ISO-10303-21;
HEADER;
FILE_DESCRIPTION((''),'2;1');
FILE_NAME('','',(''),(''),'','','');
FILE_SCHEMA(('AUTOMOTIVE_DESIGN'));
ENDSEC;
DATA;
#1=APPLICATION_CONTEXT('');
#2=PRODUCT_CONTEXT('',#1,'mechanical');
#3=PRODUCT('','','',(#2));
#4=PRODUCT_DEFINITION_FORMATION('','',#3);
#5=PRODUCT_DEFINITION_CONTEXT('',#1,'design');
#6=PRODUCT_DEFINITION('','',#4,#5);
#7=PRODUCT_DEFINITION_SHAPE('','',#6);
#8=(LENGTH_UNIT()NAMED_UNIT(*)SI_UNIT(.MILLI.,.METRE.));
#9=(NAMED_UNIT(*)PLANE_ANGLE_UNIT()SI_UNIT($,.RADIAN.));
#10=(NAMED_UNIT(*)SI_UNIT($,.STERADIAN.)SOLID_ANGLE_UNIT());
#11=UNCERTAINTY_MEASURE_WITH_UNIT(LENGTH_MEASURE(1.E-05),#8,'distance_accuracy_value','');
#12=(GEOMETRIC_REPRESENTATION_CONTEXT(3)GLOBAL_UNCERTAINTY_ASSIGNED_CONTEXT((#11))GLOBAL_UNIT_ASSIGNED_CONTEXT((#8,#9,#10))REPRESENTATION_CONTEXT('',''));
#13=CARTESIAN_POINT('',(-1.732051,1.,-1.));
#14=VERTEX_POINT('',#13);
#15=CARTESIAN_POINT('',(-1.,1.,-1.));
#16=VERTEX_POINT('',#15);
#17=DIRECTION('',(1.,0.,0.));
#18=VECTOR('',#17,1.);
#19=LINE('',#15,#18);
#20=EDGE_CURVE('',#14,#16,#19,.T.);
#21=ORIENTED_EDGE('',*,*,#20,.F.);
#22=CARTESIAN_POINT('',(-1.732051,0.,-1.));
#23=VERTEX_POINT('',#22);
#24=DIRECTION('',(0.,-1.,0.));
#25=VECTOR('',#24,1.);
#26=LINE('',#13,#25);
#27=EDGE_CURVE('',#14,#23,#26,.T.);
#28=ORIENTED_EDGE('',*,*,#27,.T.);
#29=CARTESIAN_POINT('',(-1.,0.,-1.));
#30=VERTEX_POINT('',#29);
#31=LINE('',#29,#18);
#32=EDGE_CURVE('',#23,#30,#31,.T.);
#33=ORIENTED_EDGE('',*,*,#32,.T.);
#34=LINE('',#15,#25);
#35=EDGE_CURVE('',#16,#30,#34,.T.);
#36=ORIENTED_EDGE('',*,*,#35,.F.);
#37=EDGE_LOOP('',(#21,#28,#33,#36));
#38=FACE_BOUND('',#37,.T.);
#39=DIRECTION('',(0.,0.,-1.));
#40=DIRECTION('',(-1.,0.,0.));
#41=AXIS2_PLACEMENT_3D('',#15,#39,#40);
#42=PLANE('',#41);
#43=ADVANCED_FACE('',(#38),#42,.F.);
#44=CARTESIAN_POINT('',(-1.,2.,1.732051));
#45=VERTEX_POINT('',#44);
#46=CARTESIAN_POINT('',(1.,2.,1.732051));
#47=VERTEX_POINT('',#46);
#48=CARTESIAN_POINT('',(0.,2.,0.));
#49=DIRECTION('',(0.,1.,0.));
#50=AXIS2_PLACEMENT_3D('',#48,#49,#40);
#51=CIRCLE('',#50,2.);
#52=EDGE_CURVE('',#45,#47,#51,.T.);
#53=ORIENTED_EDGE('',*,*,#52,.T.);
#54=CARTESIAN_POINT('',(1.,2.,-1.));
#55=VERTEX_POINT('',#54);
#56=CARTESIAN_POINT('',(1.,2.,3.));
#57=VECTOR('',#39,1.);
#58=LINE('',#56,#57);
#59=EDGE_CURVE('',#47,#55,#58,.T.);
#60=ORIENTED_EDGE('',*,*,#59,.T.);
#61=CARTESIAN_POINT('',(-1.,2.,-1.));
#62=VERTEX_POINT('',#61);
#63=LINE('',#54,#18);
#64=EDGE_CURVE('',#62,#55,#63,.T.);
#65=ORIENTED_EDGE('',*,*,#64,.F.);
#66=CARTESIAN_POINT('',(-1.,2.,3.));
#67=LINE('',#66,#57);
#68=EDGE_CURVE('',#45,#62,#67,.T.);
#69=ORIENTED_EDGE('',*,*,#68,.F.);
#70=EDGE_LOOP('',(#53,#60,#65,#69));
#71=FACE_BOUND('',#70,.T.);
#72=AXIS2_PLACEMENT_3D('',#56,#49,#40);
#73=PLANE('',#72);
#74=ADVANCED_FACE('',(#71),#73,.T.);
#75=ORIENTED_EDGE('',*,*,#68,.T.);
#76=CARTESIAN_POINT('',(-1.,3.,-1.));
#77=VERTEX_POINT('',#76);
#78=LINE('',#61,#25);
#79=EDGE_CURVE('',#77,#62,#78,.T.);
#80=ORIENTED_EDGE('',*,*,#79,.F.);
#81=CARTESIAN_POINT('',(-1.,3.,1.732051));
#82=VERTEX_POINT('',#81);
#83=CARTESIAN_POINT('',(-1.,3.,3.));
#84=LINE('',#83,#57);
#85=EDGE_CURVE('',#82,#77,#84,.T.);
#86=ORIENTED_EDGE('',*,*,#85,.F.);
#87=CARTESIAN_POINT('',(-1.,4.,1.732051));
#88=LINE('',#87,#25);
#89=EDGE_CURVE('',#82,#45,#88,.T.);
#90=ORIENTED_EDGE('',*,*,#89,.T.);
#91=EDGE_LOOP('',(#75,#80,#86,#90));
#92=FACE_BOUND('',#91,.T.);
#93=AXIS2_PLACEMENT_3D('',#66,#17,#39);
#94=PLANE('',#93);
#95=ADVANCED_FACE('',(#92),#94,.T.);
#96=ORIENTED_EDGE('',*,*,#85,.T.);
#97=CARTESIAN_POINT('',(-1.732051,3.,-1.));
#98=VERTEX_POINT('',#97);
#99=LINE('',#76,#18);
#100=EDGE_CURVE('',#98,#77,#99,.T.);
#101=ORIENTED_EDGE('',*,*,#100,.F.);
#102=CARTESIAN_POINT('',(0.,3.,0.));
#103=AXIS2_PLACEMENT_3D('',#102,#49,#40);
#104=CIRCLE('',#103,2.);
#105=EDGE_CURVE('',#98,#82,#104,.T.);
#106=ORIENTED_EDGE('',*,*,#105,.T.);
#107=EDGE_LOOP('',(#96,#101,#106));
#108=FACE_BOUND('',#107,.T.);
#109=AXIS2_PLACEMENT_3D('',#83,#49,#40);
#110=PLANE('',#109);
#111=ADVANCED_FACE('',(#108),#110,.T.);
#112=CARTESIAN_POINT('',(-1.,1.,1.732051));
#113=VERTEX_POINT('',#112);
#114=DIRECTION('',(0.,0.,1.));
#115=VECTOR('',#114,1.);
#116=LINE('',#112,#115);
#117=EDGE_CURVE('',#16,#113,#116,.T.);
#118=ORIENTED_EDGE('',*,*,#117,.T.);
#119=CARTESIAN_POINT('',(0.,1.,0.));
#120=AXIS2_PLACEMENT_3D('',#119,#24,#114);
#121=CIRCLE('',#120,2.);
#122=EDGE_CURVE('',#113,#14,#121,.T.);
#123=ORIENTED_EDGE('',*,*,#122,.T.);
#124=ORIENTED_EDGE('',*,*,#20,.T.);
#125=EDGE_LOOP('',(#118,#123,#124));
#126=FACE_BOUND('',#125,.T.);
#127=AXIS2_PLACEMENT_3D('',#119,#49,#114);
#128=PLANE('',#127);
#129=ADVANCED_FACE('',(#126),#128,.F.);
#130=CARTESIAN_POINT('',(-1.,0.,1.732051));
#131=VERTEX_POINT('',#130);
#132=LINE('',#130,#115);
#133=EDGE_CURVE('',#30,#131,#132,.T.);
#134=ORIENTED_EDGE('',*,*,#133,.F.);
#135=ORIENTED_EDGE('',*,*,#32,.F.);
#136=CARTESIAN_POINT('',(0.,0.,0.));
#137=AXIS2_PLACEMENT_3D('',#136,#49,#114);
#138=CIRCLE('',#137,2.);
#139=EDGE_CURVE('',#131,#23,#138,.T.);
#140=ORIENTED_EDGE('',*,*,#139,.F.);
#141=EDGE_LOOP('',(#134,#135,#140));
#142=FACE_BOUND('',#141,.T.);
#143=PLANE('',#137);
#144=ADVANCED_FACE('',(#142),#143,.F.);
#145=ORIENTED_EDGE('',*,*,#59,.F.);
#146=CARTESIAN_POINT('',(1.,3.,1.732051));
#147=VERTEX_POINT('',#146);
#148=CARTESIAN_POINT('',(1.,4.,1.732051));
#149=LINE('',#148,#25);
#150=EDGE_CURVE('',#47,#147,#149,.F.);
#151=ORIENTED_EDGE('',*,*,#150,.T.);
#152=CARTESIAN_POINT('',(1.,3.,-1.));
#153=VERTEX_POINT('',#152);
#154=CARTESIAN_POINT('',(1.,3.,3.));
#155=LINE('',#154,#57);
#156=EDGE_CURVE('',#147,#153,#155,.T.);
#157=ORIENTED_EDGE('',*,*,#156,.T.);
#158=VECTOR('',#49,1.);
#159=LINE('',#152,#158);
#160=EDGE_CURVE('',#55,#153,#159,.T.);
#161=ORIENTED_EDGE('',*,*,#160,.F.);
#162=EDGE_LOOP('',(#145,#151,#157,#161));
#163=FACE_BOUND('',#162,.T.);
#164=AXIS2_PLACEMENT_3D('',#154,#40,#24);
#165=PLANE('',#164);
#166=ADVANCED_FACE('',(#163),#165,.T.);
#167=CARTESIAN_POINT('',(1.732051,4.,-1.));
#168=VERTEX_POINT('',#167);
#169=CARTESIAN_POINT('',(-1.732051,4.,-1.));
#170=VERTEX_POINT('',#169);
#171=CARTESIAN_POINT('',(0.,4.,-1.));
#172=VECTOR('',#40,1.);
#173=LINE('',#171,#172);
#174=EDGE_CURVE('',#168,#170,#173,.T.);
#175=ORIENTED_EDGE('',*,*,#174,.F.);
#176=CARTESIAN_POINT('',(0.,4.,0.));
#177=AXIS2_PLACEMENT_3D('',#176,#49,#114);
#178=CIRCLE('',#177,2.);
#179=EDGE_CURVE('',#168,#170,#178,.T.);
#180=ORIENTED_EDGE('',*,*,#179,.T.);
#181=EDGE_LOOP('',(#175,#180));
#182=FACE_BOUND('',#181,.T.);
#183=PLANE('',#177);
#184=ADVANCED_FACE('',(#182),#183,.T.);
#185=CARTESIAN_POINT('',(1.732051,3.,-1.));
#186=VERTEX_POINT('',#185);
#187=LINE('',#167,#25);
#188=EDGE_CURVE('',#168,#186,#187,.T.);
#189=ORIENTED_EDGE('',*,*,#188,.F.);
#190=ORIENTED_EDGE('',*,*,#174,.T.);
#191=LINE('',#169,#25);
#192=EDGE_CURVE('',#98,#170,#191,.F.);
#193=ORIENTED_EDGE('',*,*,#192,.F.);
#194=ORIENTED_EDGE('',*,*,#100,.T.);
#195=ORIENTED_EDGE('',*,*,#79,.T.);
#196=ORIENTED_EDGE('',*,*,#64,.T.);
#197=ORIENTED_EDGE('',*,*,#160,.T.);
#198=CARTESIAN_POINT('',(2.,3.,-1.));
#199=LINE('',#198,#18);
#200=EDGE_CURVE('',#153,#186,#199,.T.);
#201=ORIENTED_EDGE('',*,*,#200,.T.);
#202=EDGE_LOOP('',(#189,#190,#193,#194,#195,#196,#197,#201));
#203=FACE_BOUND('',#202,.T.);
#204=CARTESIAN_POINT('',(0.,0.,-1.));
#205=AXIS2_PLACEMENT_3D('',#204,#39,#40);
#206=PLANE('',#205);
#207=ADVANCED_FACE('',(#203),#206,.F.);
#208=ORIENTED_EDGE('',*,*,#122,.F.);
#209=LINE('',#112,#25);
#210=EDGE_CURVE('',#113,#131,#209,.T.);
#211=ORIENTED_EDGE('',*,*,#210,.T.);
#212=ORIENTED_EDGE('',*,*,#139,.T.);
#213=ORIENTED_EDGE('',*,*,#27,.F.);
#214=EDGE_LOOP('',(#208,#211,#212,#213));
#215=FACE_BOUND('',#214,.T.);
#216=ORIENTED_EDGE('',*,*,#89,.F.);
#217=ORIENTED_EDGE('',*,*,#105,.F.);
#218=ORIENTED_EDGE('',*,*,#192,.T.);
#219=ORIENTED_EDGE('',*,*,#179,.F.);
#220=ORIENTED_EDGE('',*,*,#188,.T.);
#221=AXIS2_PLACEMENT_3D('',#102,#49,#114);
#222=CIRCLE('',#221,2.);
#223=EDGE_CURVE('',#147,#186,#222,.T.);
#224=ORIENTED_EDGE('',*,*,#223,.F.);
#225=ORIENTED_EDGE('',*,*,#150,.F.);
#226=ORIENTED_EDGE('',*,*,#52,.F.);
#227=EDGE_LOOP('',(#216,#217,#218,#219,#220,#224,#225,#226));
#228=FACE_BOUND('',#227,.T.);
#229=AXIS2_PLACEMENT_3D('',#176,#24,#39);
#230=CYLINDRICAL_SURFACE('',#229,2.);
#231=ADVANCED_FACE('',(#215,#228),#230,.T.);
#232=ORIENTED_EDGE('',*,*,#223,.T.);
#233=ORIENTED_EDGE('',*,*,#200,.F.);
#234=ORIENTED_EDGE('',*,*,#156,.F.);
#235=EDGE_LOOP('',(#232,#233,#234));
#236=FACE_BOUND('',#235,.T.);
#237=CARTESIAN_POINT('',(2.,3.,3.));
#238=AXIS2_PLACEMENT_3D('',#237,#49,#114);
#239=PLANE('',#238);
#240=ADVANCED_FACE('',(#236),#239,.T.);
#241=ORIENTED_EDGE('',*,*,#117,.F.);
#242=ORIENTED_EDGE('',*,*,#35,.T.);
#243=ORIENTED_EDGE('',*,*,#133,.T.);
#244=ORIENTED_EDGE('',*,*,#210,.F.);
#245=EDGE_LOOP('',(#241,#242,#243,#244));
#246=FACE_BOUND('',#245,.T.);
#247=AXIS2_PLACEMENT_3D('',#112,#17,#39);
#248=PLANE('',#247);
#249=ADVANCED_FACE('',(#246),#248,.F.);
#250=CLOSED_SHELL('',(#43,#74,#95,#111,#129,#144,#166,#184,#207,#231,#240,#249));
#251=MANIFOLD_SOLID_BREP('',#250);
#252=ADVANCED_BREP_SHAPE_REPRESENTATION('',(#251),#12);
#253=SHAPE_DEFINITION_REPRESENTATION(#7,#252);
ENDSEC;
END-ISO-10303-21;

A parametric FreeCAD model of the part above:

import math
import FreeCAD as App
import Part
import Sketcher

V = App.Vector


def add_polygon(sketch, points):
    """Adds a closed chain of lines whose ends are joined by coincident constraints."""
    first, n = sketch.GeometryCount, len(points)
    for a, b in zip(points, points[1:] + points[:1]):
        sketch.addGeometry(Part.LineSegment(App.Vector(*a, 0), App.Vector(*b, 0)), False)
    for i in range(n):
        sketch.addConstraint(Sketcher.Constraint("Coincident", first + i, 2, first + (i + 1) % n, 1))

doc = App.newDocument("Part")
params = doc.addObject("Spreadsheet::Sheet", "Params")
for row, (alias, value) in enumerate([
    ("sketch1_diameter", "4 mm"),
    ("pad1_length", "4 mm"),
    ("sketch2_width", "4 mm"),
    ("sketch2_width2", "1 mm"),
    ("pocket1_length", "3 mm"),
    ("pocket1_length2", "1 mm"),
    ("sketch3_radius", "2 mm"),
    ("pocket2_length", "1 mm"),
], start=1):
    params.set(f"A{row}", alias)
    params.set(f"B{row}", "=" + value)
    params.setAlias(f"B{row}", alias)

body = doc.addObject("PartDesign::Body", "Body")

# Sketch on XZ plane
sketch1 = body.newObject("Sketcher::SketchObject", "Sketch")
sketch1.AttachmentSupport = (doc.getObject("XZ_Plane"), [""])
sketch1.MapMode = "FlatFace"
sketch1.addGeometry(Part.Circle(V(0, 0, 0), V(0, 0, 1), 2), False)
sketch1.addConstraint(Sketcher.Constraint("Coincident", 0, 3, -1, 1))
sketch1.addConstraint(Sketcher.Constraint("Diameter", 0, 4.0))
sketch1.setExpression("Constraints[1]", "Params.sketch1_diameter")
pad1 = body.newObject("PartDesign::Pad", "Pad")
pad1.Profile = sketch1
pad1.setExpression("Length", "Params.pad1_length")
pad1.Reversed = True

# Sketch on XY plane
sketch2 = body.newObject("Sketcher::SketchObject", "Sketch001")
sketch2.AttachmentSupport = (doc.getObject("XY_Plane"), [""])
sketch2.MapMode = "FlatFace"
add_polygon(sketch2, [(2, 4), (-2, 4), (-2, 3), (-1, 3), (-1, 2), (1, 2), (1, 3), (2, 3)])  # lines 0-7
sketch2.addConstraint(Sketcher.Constraint("Horizontal", 0))
sketch2.addConstraint(Sketcher.Constraint("Vertical", 1))
sketch2.addConstraint(Sketcher.Constraint("Horizontal", 2))
sketch2.addConstraint(Sketcher.Constraint("Vertical", 3))
sketch2.addConstraint(Sketcher.Constraint("Horizontal", 4))
sketch2.addConstraint(Sketcher.Constraint("Vertical", 5))
sketch2.addConstraint(Sketcher.Constraint("Horizontal", 6))
sketch2.addConstraint(Sketcher.Constraint("Vertical", 7))
sketch2.addConstraint(Sketcher.Constraint("Symmetric", 2, 2, 5, 2, -2))
sketch2.addConstraint(Sketcher.Constraint("Equal", 2, 6))
sketch2.addConstraint(Sketcher.Constraint("Equal", 6, 1))
sketch2.addConstraint(Sketcher.Constraint("Equal", 1, 3))
sketch2.addConstraint(Sketcher.Constraint("DistanceX", 0, 2, 0, 1, 4.0))
sketch2.addConstraint(Sketcher.Constraint("DistanceX", 2, 1, 2, 2, 1.0))
sketch2.addConstraint(Sketcher.Constraint("DistanceY", -1, 1, 0, 2, 4.0))
sketch2.setExpression("Constraints[20]", "Params.sketch2_width")
sketch2.setExpression("Constraints[21]", "Params.sketch2_width2")
pocket1 = body.newObject("PartDesign::Pocket", "Pocket")
pocket1.Profile = sketch2
pocket1.Type = "TwoLengths"
pocket1.setExpression("Length", "Params.pocket1_length")
pocket1.setExpression("Length2", "Params.pocket1_length2")
pocket1.Reversed = True

# Sketch on XZ plane
sketch3 = body.newObject("Sketcher::SketchObject", "Sketch002")
sketch3.AttachmentSupport = (doc.getObject("XZ_Plane"), [""])
sketch3.MapMode = "FlatFace"
sketch3.addGeometry(Part.LineSegment(V(-1, -1, 0), V(-1, 1.732051, 0)), False)
sketch3.addGeometry(Part.ArcOfCircle(Part.Circle(V(0, 0, 0), V(0, 0, 1), 2), math.radians(120), math.radians(210)), False)
sketch3.addGeometry(Part.LineSegment(V(-1.732051, -1, 0), V(-1, -1, 0)), False)
sketch3.addConstraint(Sketcher.Constraint("Coincident", 0, 2, 1, 1))
sketch3.addConstraint(Sketcher.Constraint("Coincident", 1, 2, 2, 1))
sketch3.addConstraint(Sketcher.Constraint("Coincident", 2, 2, 0, 1))
sketch3.addConstraint(Sketcher.Constraint("Vertical", 0))
sketch3.addConstraint(Sketcher.Constraint("Horizontal", 2))
sketch3.addConstraint(Sketcher.Constraint("Coincident", 1, 3, -1, 1))
sketch3.addConstraint(Sketcher.Constraint("Radius", 1, 2.0))
sketch3.addConstraint(Sketcher.Constraint("DistanceX", 0, 2, -1, 1, 1.0))
sketch3.addConstraint(Sketcher.Constraint("DistanceY", 1, 2, -1, 1, 1.0))
sketch3.setExpression("Constraints[6]", "Params.sketch3_radius")
pocket2 = body.newObject("PartDesign::Pocket", "Pocket001")
pocket2.Profile = sketch3
pocket2.setExpression("Length", "Params.pocket2_length")

doc.recompute()
